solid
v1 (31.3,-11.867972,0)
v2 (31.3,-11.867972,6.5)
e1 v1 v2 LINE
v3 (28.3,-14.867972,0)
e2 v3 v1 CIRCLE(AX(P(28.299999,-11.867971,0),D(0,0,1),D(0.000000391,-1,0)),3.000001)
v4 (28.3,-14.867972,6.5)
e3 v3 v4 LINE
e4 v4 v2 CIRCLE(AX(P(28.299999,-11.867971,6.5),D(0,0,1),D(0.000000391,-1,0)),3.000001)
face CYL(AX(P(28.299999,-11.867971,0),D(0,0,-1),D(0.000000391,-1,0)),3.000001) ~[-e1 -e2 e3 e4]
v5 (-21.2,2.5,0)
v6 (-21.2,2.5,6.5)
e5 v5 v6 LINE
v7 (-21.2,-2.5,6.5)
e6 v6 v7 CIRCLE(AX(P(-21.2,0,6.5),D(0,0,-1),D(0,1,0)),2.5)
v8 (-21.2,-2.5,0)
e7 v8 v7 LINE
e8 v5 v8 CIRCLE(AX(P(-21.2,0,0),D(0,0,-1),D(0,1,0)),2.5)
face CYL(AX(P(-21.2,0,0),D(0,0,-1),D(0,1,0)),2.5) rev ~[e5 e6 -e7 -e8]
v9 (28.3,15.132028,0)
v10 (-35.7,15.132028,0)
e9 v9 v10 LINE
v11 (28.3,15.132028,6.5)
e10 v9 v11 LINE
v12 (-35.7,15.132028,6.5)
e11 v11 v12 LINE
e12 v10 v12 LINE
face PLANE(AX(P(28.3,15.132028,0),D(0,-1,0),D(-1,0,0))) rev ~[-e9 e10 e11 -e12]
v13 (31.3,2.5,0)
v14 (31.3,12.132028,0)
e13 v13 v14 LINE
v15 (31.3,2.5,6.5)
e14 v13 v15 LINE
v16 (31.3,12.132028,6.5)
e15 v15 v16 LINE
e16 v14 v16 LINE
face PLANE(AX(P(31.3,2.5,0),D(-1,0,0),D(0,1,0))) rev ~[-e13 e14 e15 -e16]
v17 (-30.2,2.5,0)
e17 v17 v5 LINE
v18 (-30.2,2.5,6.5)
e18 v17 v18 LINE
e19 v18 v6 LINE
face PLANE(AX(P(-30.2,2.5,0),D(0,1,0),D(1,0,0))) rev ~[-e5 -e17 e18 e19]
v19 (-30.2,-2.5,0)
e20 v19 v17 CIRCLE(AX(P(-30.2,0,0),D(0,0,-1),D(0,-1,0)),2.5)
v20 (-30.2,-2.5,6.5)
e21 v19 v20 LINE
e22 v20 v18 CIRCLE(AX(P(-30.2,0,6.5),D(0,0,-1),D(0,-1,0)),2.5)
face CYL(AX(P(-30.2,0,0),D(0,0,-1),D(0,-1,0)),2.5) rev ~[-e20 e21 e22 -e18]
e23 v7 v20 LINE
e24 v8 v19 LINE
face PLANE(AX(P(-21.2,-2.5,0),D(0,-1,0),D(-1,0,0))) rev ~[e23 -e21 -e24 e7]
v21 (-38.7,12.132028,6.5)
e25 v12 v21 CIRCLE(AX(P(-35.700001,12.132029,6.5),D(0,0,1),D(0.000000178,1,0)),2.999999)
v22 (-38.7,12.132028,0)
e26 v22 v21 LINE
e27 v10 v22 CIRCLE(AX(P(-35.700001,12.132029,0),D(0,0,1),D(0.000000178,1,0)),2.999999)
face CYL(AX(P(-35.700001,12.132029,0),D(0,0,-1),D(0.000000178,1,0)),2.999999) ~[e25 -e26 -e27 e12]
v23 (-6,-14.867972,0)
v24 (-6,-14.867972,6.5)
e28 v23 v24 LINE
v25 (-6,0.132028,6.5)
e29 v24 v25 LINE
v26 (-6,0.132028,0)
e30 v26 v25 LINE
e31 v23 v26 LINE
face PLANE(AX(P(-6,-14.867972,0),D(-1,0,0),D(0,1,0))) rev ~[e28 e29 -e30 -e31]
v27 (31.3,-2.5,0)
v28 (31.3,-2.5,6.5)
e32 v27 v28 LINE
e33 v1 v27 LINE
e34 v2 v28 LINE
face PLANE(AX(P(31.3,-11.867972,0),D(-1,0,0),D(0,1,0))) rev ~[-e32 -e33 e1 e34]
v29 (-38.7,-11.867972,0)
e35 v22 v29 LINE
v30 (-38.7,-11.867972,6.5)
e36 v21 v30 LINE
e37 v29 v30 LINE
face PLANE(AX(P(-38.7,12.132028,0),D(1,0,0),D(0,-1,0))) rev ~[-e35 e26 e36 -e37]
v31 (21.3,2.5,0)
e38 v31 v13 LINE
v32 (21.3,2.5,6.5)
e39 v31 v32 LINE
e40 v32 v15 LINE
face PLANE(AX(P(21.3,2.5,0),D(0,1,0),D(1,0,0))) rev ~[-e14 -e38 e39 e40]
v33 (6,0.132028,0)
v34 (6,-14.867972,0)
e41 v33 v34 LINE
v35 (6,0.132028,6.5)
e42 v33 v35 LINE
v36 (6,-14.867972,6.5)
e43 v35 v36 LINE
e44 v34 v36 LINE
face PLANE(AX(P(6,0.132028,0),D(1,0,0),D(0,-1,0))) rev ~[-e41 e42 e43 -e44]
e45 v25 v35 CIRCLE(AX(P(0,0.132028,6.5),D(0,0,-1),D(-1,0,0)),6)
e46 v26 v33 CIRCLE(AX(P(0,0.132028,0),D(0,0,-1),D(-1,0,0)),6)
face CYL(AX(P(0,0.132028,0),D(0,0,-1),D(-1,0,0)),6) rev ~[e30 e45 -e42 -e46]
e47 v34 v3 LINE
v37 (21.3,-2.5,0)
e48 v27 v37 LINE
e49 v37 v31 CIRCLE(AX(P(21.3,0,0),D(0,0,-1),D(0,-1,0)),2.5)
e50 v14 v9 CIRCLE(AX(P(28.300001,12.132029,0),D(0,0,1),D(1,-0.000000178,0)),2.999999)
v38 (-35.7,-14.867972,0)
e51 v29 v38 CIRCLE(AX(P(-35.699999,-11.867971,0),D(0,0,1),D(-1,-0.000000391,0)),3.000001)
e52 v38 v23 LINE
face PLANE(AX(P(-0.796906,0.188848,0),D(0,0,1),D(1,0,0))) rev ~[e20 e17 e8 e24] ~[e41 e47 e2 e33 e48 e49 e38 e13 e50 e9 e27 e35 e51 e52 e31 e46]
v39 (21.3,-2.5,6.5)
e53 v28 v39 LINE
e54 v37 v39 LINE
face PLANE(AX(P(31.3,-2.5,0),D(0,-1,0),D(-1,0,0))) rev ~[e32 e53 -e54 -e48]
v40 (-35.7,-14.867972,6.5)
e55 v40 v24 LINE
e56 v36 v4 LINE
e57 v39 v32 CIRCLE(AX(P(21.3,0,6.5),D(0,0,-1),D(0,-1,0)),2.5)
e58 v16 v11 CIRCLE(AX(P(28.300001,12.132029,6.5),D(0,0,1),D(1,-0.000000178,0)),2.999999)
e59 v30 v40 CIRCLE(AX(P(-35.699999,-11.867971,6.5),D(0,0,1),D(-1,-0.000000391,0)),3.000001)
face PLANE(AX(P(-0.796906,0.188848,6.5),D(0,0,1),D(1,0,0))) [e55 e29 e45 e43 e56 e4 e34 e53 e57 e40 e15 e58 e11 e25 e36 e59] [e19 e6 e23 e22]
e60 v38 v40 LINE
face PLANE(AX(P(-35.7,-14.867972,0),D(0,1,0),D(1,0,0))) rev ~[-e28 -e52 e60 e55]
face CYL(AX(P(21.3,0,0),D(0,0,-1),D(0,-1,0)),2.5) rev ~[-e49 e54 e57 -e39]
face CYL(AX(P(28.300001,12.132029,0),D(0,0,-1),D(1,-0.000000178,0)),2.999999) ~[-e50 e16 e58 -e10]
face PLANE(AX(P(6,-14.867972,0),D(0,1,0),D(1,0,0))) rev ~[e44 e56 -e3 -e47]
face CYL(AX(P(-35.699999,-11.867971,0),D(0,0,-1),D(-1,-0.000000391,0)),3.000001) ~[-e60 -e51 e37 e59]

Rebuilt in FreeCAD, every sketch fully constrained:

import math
import FreeCAD as App
import Part
import Sketcher

V = App.Vector
Q = App.Units.Quantity

doc = App.newDocument("Part")
body = doc.addObject("PartDesign::Body", "Body")

# Sketch on XY plane
sketch1 = doc.addObject("Sketcher::SketchObject", "Sketch")
body.addObject(sketch1)
sketch1.AttachmentSupport = (doc.XY_Plane, [""])
sketch1.MapMode = "FlatFace"
sketch1.addGeometry([
    Part.LineSegment(V(28.3, 15.1, 0), V(-35.7, 15.1, 0)),  # 0
    Part.ArcOfCircle(Part.Circle(V(-35.7, 12.1, 0), V(0, 0, 1), 3), math.radians(90), math.radians(180)),  # 1
    Part.LineSegment(V(-38.7, 12.1, 0), V(-38.7, -11.9, 0)),  # 2
    Part.ArcOfCircle(Part.Circle(V(-35.7, -11.9, 0), V(0, 0, 1), 3), math.radians(-180), math.radians(-90)),  # 3
    Part.LineSegment(V(-35.7, -14.9, 0), V(-6, -14.9, 0)),  # 4
    Part.LineSegment(V(-6, -14.9, 0), V(-6, 0.1, 0)),  # 5
    Part.ArcOfCircle(Part.Circle(V(0, 0.1, 0), V(0, 0, 1), 6), math.radians(0), math.radians(180)),  # 6
    Part.LineSegment(V(6, 0.1, 0), V(6, -14.9, 0)),  # 7
    Part.LineSegment(V(6, -14.9, 0), V(28.3, -14.9, 0)),  # 8
    Part.ArcOfCircle(Part.Circle(V(28.3, -11.9, 0), V(0, 0, 1), 3), math.radians(-90), math.radians(0)),  # 9
    Part.LineSegment(V(31.3, -11.9, 0), V(31.3, -2.5, 0)),  # 10
    Part.LineSegment(V(31.3, -2.5, 0), V(21.3, -2.5, 0)),  # 11
    Part.ArcOfCircle(Part.Circle(V(21.3, 0, 0), V(0, 0, 1), 2.5), math.radians(90), math.radians(270)),  # 12
    Part.LineSegment(V(21.3, 2.5, 0), V(31.3, 2.5, 0)),  # 13
    Part.LineSegment(V(31.3, 2.5, 0), V(31.3, 12.1, 0)),  # 14
    Part.ArcOfCircle(Part.Circle(V(28.3, 12.1, 0), V(0, 0, 1), 3), math.radians(0), math.radians(90)),  # 15
    Part.LineSegment(V(-21.2, -2.5, 0), V(-30.2, -2.5, 0)),  # 16
    Part.ArcOfCircle(Part.Circle(V(-30.2, 0, 0), V(0, 0, 1), 2.5), math.radians(90), math.radians(270)),  # 17
    Part.LineSegment(V(-30.2, 2.5, 0), V(-21.2, 2.5, 0)),  # 18
    Part.ArcOfCircle(Part.Circle(V(-21.2, 0, 0), V(0, 0, 1), 2.5), math.radians(-90), math.radians(90)),  # 19
], False)
sketch1.addConstraint([
    Sketcher.Constraint("Tangent", 0, 2, 1, 1),
    Sketcher.Constraint("Tangent", 1, 2, 2, 1),
    Sketcher.Constraint("Tangent", 2, 2, 3, 1),
    Sketcher.Constraint("Tangent", 3, 2, 4, 1),
    Sketcher.Constraint("Coincident", 4, 2, 5, 1),
    Sketcher.Constraint("Tangent", 5, 2, 6, 2),
    Sketcher.Constraint("Tangent", 6, 1, 7, 1),
    Sketcher.Constraint("Coincident", 7, 2, 8, 1),
    Sketcher.Constraint("Tangent", 8, 2, 9, 1),
    Sketcher.Constraint("Tangent", 9, 2, 10, 1),
    Sketcher.Constraint("Coincident", 10, 2, 11, 1),
    Sketcher.Constraint("Tangent", 11, 2, 12, 2),
    Sketcher.Constraint("Tangent", 12, 1, 13, 1),
    Sketcher.Constraint("Coincident", 13, 2, 14, 1),
    Sketcher.Constraint("Tangent", 14, 2, 15, 1),
    Sketcher.Constraint("Tangent", 15, 2, 0, 1),
    Sketcher.Constraint("Tangent", 16, 2, 17, 2),
    Sketcher.Constraint("Tangent", 17, 1, 18, 1),
    Sketcher.Constraint("Tangent", 18, 2, 19, 2),
    Sketcher.Constraint("Tangent", 19, 1, 16, 1),
    Sketcher.Constraint("Horizontal", 0),
    Sketcher.Constraint("Vertical", 2),
    Sketcher.Constraint("Horizontal", 4),
    Sketcher.Constraint("Vertical", 5),
    Sketcher.Constraint("Vertical", 7),
    Sketcher.Constraint("Horizontal", 8),
    Sketcher.Constraint("Vertical", 10),
    Sketcher.Constraint("Horizontal", 11),
    Sketcher.Constraint("Horizontal", 13),
    Sketcher.Constraint("Vertical", 14),
    Sketcher.Constraint("Horizontal", 16),
    Sketcher.Constraint("Horizontal", 18),
    Sketcher.Constraint("Equal", 1, 3),
    Sketcher.Constraint("Equal", 3, 9),
    Sketcher.Constraint("Equal", 9, 15),
    Sketcher.Constraint("Equal", 12, 17),
    Sketcher.Constraint("Symmetric", 4, 2, 7, 2, -2),
    Sketcher.Constraint("Symmetric", 10, 2, 13, 2, -1),
    Sketcher.Constraint("PointOnObject", 17, 3, -1),
    Sketcher.Constraint("Radius", 1, Q("2.999999 mm")),
    Sketcher.Constraint("Radius", 6, Q("6 mm")),
    Sketcher.Constraint("Radius", 12, Q("2.5 mm")),
    Sketcher.Constraint("DistanceX", 0, 2, 0, 1, Q("64 mm")),
    Sketcher.Constraint("DistanceX", 11, 2, 11, 1, Q("10 mm")),
    Sketcher.Constraint("DistanceX", 16, 2, 16, 1, Q("9 mm")),
    Sketcher.Constraint("DistanceY", 2, 2, 2, 1, Q("24 mm")),
    Sketcher.Constraint("DistanceY", 5, 1, 5, 2, Q("15 mm")),
    Sketcher.Constraint("DistanceX", 4, 1, 4, 2, Q("29.7 mm")),
    Sketcher.Constraint("DistanceX", 17, 3, -1, 1, Q("30.2 mm")),
    Sketcher.Constraint("DistanceY", 10, 1, 10, 2, Q("9.367972 mm")),
])
pad1 = doc.addObject("PartDesign::Pad", "Pad")
body.addObject(pad1)
pad1.Profile = sketch1
pad1.Length = 6.5

doc.recompute()
